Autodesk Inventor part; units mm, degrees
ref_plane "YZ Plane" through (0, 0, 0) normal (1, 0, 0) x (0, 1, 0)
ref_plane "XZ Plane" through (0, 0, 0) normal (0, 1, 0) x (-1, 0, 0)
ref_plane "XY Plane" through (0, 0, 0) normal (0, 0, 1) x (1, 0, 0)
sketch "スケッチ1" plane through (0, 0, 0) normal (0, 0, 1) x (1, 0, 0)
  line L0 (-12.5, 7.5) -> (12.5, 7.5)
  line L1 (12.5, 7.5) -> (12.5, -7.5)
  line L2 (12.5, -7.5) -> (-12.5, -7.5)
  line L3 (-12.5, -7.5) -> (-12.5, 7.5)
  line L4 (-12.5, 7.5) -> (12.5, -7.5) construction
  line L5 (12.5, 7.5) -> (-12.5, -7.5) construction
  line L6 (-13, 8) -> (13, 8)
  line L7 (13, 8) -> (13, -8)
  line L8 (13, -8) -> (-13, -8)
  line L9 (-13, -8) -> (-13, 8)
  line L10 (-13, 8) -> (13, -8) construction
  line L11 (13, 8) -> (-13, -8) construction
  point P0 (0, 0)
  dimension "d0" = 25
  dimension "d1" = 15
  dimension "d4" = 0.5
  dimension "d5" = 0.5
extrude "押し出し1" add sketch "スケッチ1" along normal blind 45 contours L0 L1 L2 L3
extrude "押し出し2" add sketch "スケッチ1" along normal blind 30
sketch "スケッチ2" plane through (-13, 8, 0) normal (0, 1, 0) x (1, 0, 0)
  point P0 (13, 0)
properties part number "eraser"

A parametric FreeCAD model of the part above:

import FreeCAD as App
import Part
import Sketcher

V = App.Vector

doc = App.newDocument("Part")
body = doc.addObject("PartDesign::Body", "Body")

sketch1 = body.newObject("Sketcher::SketchObject", "Sketch")
sketch1.AttachmentSupport = (doc.getObject("XY_Plane"), [""])
sketch1.MapMode = "FlatFace"
sketch1.addGeometry([
    Part.LineSegment(V(12.5, 7.5, 0), V(-12.5, 7.5, 0)),
    Part.LineSegment(V(-12.5, 7.5, 0), V(-12.5, -7.5, 0)),
    Part.LineSegment(V(-12.5, -7.5, 0), V(12.5, -7.5, 0)),
    Part.LineSegment(V(12.5, -7.5, 0), V(12.5, 7.5, 0)),
], False)
sketch1.addConstraint([
    Sketcher.Constraint("Coincident", 0, 2, 1, 1),
    Sketcher.Constraint("Coincident", 1, 2, 2, 1),
    Sketcher.Constraint("Coincident", 2, 2, 3, 1),
    Sketcher.Constraint("Coincident", 3, 2, 0, 1),
    Sketcher.Constraint("Horizontal", 0),
    Sketcher.Constraint("Vertical", 1),
    Sketcher.Constraint("Horizontal", 2),
    Sketcher.Constraint("Vertical", 3),
    Sketcher.Constraint("Symmetric", 0, 2, 2, 2, -1, 1),
    Sketcher.Constraint("DistanceX", 0, 2, 0, 1, 25.0),
    Sketcher.Constraint("DistanceY", 1, 2, 1, 1, 15.0),
])
pad1 = body.newObject("PartDesign::Pad", "Pad")
pad1.Profile = sketch1
pad1.Length = 45

sketch2 = body.newObject("Sketcher::SketchObject", "Sketch001")
sketch2.AttachmentSupport = (doc.getObject("XY_Plane"), [""])
sketch2.MapMode = "FlatFace"
sketch2.addGeometry([
    Part.LineSegment(V(13, 8, 0), V(-13, 8, 0)),
    Part.LineSegment(V(-13, 8, 0), V(-13, -8, 0)),
    Part.LineSegment(V(-13, -8, 0), V(13, -8, 0)),
    Part.LineSegment(V(13, -8, 0), V(13, 8, 0)),
    Part.LineSegment(V(-12.5, -7.5, 0), V(-12.5, 7.5, 0)),
    Part.LineSegment(V(-12.5, 7.5, 0), V(12.5, 7.5, 0)),
    Part.LineSegment(V(12.5, 7.5, 0), V(12.5, -7.5, 0)),
    Part.LineSegment(V(12.5, -7.5, 0), V(-12.5, -7.5, 0)),
], False)
sketch2.addConstraint([
    Sketcher.Constraint("Coincident", 0, 2, 1, 1),
    Sketcher.Constraint("Coincident", 1, 2, 2, 1),
    Sketcher.Constraint("Coincident", 2, 2, 3, 1),
    Sketcher.Constraint("Coincident", 3, 2, 0, 1),
    Sketcher.Constraint("Coincident", 4, 2, 5, 1),
    Sketcher.Constraint("Coincident", 5, 2, 6, 1),
    Sketcher.Constraint("Coincident", 6, 2, 7, 1),
    Sketcher.Constraint("Coincident", 7, 2, 4, 1),
    Sketcher.Constraint("Horizontal", 0),
    Sketcher.Constraint("Vertical", 1),
    Sketcher.Constraint("Horizontal", 2),
    Sketcher.Constraint("Vertical", 3),
    Sketcher.Constraint("Vertical", 4),
    Sketcher.Constraint("Horizontal", 5),
    Sketcher.Constraint("Vertical", 6),
    Sketcher.Constraint("Horizontal", 7),
    Sketcher.Constraint("Symmetric", 0, 2, 2, 2, -1, 1),
    Sketcher.Constraint("Symmetric", 4, 2, 6, 2, -1, 1),
    Sketcher.Constraint("DistanceX", 5, 1, 5, 2, 25.0),
    Sketcher.Constraint("DistanceY", 4, 1, 4, 2, 15.0),
    Sketcher.Constraint("DistanceX", 0, 2, 4, 2, 0.5),
    Sketcher.Constraint("DistanceY", 4, 2, 0, 2, 0.5),
])
pad2 = body.newObject("PartDesign::Pad", "Pad001")
pad2.Profile = sketch2
pad2.Length = 30

doc.recompute()
